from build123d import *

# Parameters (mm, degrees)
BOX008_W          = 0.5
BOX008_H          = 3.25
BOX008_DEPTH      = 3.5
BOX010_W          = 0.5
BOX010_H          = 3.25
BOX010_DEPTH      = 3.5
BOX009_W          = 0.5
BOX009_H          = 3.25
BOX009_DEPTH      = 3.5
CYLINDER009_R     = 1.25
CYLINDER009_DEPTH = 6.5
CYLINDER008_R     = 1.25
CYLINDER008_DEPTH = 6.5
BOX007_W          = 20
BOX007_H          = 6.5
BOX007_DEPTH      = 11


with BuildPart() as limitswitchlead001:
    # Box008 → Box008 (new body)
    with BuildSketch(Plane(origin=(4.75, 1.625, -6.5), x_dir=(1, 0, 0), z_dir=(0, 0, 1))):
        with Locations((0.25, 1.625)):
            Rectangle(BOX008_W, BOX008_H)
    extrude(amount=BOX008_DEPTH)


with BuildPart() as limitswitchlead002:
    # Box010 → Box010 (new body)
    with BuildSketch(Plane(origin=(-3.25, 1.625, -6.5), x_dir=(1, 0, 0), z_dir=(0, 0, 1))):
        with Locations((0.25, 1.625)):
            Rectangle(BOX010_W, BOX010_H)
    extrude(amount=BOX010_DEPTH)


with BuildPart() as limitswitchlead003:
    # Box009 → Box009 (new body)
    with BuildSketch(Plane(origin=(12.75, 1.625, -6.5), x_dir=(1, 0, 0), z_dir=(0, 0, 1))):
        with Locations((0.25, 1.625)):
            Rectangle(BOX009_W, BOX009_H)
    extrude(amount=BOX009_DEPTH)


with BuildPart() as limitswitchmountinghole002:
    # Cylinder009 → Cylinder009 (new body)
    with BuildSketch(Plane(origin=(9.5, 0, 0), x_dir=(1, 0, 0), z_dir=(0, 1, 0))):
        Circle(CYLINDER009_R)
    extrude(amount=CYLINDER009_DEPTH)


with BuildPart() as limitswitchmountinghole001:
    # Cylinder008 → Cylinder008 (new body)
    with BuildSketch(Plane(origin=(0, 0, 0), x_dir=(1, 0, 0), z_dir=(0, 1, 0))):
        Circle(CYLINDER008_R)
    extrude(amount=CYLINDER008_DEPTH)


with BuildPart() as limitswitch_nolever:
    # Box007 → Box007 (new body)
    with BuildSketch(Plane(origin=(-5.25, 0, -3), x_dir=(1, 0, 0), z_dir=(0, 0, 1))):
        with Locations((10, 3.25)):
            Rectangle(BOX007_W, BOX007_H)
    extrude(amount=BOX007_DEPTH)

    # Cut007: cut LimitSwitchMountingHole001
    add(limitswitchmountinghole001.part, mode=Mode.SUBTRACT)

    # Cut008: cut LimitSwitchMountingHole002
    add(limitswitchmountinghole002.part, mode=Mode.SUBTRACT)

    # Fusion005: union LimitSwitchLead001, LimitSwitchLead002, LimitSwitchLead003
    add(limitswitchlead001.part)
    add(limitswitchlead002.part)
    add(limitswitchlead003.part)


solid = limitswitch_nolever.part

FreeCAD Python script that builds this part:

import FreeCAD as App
import Part
import Sketcher
from FreeCAD import Vector

doc = App.newDocument("Part")
params = doc.addObject("Spreadsheet::Sheet", "Params")
for row, (alias, value) in enumerate([
    ("sketch1_width", "0.5 mm"),
    ("sketch1_height", "3.25 mm"),
    ("pad1_length", "3.5 mm"),
    ("sketch2_width", "0.5 mm"),
    ("sketch2_height", "3.25 mm"),
    ("pad2_length", "3.5 mm"),
    ("sketch3_width", "0.5 mm"),
    ("sketch3_height", "3.25 mm"),
    ("pad3_length", "3.5 mm"),
    ("sketch4_diameter", "2.5 mm"),
    ("pad4_length", "6.5 mm"),
    ("sketch5_diameter", "2.5 mm"),
    ("pad5_length", "6.5 mm"),
    ("sketch6_width", "20 mm"),
    ("sketch6_height", "6.5 mm"),
    ("pad6_length", "11 mm"),
], start=1):
    params.set(f"A{row}", alias)
    params.set(f"B{row}", "=" + value)
    params.setAlias(f"B{row}", alias)

body = doc.addObject("PartDesign::Body", "Body")

# Sketch on XY plane
sketch1 = body.newObject("Sketcher::SketchObject", "Sketch")
sketch1.AttachmentSupport = (doc.getObject("XY_Plane"), [""])
sketch1.MapMode = "FlatFace"
sketch1.AttachmentOffset = App.Placement(Vector(0, 0, -6.5), App.Rotation())
sketch1.addGeometry([
    Part.LineSegment(Vector(4.8, 4.9, 0), Vector(4.8, 1.6, 0)),
    Part.LineSegment(Vector(4.8, 1.6, 0), Vector(5.2, 1.6, 0)),
    Part.LineSegment(Vector(5.2, 1.6, 0), Vector(5.2, 4.9, 0)),
    Part.LineSegment(Vector(5.2, 4.9, 0), Vector(4.8, 4.9, 0)),
], False)
sketch1.addConstraint([
    Sketcher.Constraint("Coincident", 0, 2, 1, 1),
    Sketcher.Constraint("Coincident", 1, 2, 2, 1),
    Sketcher.Constraint("Coincident", 2, 2, 3, 1),
    Sketcher.Constraint("Coincident", 3, 2, 0, 1),
    Sketcher.Constraint("Vertical", 0),
    Sketcher.Constraint("Horizontal", 1),
    Sketcher.Constraint("Vertical", 2),
    Sketcher.Constraint("Horizontal", 3),
    Sketcher.Constraint("DistanceX", 1, 1, 1, 2, 0.5),
    Sketcher.Constraint("DistanceY", 0, 2, 0, 1, 3.25),
    Sketcher.Constraint("DistanceX", -1, 1, 0, 2, 4.75),
    Sketcher.Constraint("DistanceY", -1, 1, 0, 2, 1.625),
])
sketch1.setExpression("Constraints[8]", "Params.sketch1_width")
sketch1.setExpression("Constraints[9]", "Params.sketch1_height")
pad1 = body.newObject("PartDesign::Pad", "Pad")
pad1.Profile = sketch1
pad1.setExpression("Length", "Params.pad1_length")
body2 = doc.addObject("PartDesign::Body", "Body001")

# Sketch on XY plane
sketch2 = body2.newObject("Sketcher::SketchObject", "Sketch001")
sketch2.AttachmentSupport = (doc.getObject("XY_Plane001"), [""])
sketch2.MapMode = "FlatFace"
sketch2.AttachmentOffset = App.Placement(Vector(0, 0, -6.5), App.Rotation())
sketch2.addGeometry([
    Part.LineSegment(Vector(-3.2, 4.9, 0), Vector(-3.2, 1.6, 0)),
    Part.LineSegment(Vector(-3.2, 1.6, 0), Vector(-2.8, 1.6, 0)),
    Part.LineSegment(Vector(-2.8, 1.6, 0), Vector(-2.8, 4.9, 0)),
    Part.LineSegment(Vector(-2.8, 4.9, 0), Vector(-3.2, 4.9, 0)),
], False)
sketch2.addConstraint([
    Sketcher.Constraint("Coincident", 0, 2, 1, 1),
    Sketcher.Constraint("Coincident", 1, 2, 2, 1),
    Sketcher.Constraint("Coincident", 2, 2, 3, 1),
    Sketcher.Constraint("Coincident", 3, 2, 0, 1),
    Sketcher.Constraint("Vertical", 0),
    Sketcher.Constraint("Horizontal", 1),
    Sketcher.Constraint("Vertical", 2),
    Sketcher.Constraint("Horizontal", 3),
    Sketcher.Constraint("DistanceX", 1, 1, 1, 2, 0.5),
    Sketcher.Constraint("DistanceY", 0, 2, 0, 1, 3.25),
    Sketcher.Constraint("DistanceX", 0, 2, -1, 1, 3.25),
    Sketcher.Constraint("DistanceY", -1, 1, 0, 2, 1.625),
])
sketch2.setExpression("Constraints[8]", "Params.sketch2_width")
sketch2.setExpression("Constraints[9]", "Params.sketch2_height")
pad2 = body2.newObject("PartDesign::Pad", "Pad001")
pad2.Profile = sketch2
pad2.setExpression("Length", "Params.pad2_length")
body3 = doc.addObject("PartDesign::Body", "Body002")

# Sketch on XY plane
sketch3 = body3.newObject("Sketcher::SketchObject", "Sketch002")
sketch3.AttachmentSupport = (doc.getObject("XY_Plane002"), [""])
sketch3.MapMode = "FlatFace"
sketch3.AttachmentOffset = App.Placement(Vector(0, 0, -6.5), App.Rotation())
sketch3.addGeometry([
    Part.LineSegment(Vector(12.8, 4.9, 0), Vector(12.8, 1.6, 0)),
    Part.LineSegment(Vector(12.8, 1.6, 0), Vector(13.2, 1.6, 0)),
    Part.LineSegment(Vector(13.2, 1.6, 0), Vector(13.2, 4.9, 0)),
    Part.LineSegment(Vector(13.2, 4.9, 0), Vector(12.8, 4.9, 0)),
], False)
sketch3.addConstraint([
    Sketcher.Constraint("Coincident", 0, 2, 1, 1),
    Sketcher.Constraint("Coincident", 1, 2, 2, 1),
    Sketcher.Constraint("Coincident", 2, 2, 3, 1),
    Sketcher.Constraint("Coincident", 3, 2, 0, 1),
    Sketcher.Constraint("Vertical", 0),
    Sketcher.Constraint("Horizontal", 1),
    Sketcher.Constraint("Vertical", 2),
    Sketcher.Constraint("Horizontal", 3),
    Sketcher.Constraint("DistanceX", 1, 1, 1, 2, 0.5),
    Sketcher.Constraint("DistanceY", 0, 2, 0, 1, 3.25),
    Sketcher.Constraint("DistanceX", -1, 1, 0, 2, 12.75),
    Sketcher.Constraint("DistanceY", -1, 1, 0, 2, 1.625),
])
sketch3.setExpression("Constraints[8]", "Params.sketch3_width")
sketch3.setExpression("Constraints[9]", "Params.sketch3_height")
pad3 = body3.newObject("PartDesign::Pad", "Pad002")
pad3.Profile = sketch3
pad3.setExpression("Length", "Params.pad3_length")
body4 = doc.addObject("PartDesign::Body", "Body003")

# Sketch on XZ plane
sketch4 = body4.newObject("Sketcher::SketchObject", "Sketch003")
sketch4.AttachmentSupport = (doc.getObject("XZ_Plane003"), [""])
sketch4.MapMode = "FlatFace"
sketch4.addGeometry(Part.Circle(Vector(9.5, 0, 0), Vector(0, 0, 1), 1.2), False)
sketch4.addConstraint([
    Sketcher.Constraint("PointOnObject", 0, 3, -1),
    Sketcher.Constraint("Diameter", 0, 2.5),
    Sketcher.Constraint("DistanceX", -1, 1, 0, 3, 9.5),
])
sketch4.setExpression("Constraints[1]", "Params.sketch4_diameter")
pad4 = body4.newObject("PartDesign::Pad", "Pad003")
pad4.Profile = sketch4
pad4.setExpression("Length", "Params.pad4_length")
pad4.Reversed = True
body5 = doc.addObject("PartDesign::Body", "Body004")

# Sketch on XZ plane
sketch5 = body5.newObject("Sketcher::SketchObject", "Sketch004")
sketch5.AttachmentSupport = (doc.getObject("XZ_Plane004"), [""])
sketch5.MapMode = "FlatFace"
sketch5.addGeometry(Part.Circle(Vector(0, 0, 0), Vector(0, 0, 1), 1.2), False)
sketch5.addConstraint([
    Sketcher.Constraint("Coincident", 0, 3, -1, 1),
    Sketcher.Constraint("Diameter", 0, 2.5),
])
sketch5.setExpression("Constraints[1]", "Params.sketch5_diameter")
pad5 = body5.newObject("PartDesign::Pad", "Pad004")
pad5.Profile = sketch5
pad5.setExpression("Length", "Params.pad5_length")
pad5.Reversed = True
body6 = doc.addObject("PartDesign::Body", "Body005")

# Sketch on XY plane
sketch6 = body6.newObject("Sketcher::SketchObject", "Sketch005")
sketch6.AttachmentSupport = (doc.getObject("XY_Plane005"), [""])
sketch6.MapMode = "FlatFace"
sketch6.AttachmentOffset = App.Placement(Vector(0, 0, -3), App.Rotation())
sketch6.addGeometry([
    Part.LineSegment(Vector(-5, 6, 0), Vector(-5, 0, 0)),
    Part.LineSegment(Vector(-5, 0, 0), Vector(15, 0, 0)),
    Part.LineSegment(Vector(15, 0, 0), Vector(15, 6, 0)),
    Part.LineSegment(Vector(15, 6, 0), Vector(-5, 6, 0)),
], False)
sketch6.addConstraint([
    Sketcher.Constraint("Coincident", 0, 2, 1, 1),
    Sketcher.Constraint("Coincident", 1, 2, 2, 1),
    Sketcher.Constraint("Coincident", 2, 2, 3, 1),
    Sketcher.Constraint("Coincident", 3, 2, 0, 1),
    Sketcher.Constraint("Vertical", 0),
    Sketcher.Constraint("Horizontal", 1),
    Sketcher.Constraint("Vertical", 2),
    Sketcher.Constraint("Horizontal", 3),
    Sketcher.Constraint("PointOnObject", 0, 2, -1),
    Sketcher.Constraint("DistanceX", 1, 1, 1, 2, 20.0),
    Sketcher.Constraint("DistanceY", 0, 2, 0, 1, 6.5),
    Sketcher.Constraint("DistanceX", 0, 2, -1, 1, 5.25),
])
sketch6.setExpression("Constraints[9]", "Params.sketch6_width")
sketch6.setExpression("Constraints[10]", "Params.sketch6_height")
pad6 = body6.newObject("PartDesign::Pad", "Pad005")
pad6.Profile = sketch6
pad6.setExpression("Length", "Params.pad6_length")
doc.recompute()

boolean = body6.newObject("PartDesign::Boolean", "Boolean")
boolean.Type = "Cut"
boolean.addObjects([body5])
doc.recompute()

boolean2 = body6.newObject("PartDesign::Boolean", "Boolean001")
boolean2.Type = "Cut"
boolean2.addObjects([body4])
doc.recompute()

boolean3 = body6.newObject("PartDesign::Boolean", "Boolean002")
boolean3.Type = "Fuse"
boolean3.addObjects([body])
doc.recompute()

boolean4 = body6.newObject("PartDesign::Boolean", "Boolean003")
boolean4.Type = "Fuse"
boolean4.addObjects([body2])
doc.recompute()

boolean5 = body6.newObject("PartDesign::Boolean", "Boolean004")
boolean5.Type = "Fuse"
boolean5.addObjects([body3])

doc.recompute()
